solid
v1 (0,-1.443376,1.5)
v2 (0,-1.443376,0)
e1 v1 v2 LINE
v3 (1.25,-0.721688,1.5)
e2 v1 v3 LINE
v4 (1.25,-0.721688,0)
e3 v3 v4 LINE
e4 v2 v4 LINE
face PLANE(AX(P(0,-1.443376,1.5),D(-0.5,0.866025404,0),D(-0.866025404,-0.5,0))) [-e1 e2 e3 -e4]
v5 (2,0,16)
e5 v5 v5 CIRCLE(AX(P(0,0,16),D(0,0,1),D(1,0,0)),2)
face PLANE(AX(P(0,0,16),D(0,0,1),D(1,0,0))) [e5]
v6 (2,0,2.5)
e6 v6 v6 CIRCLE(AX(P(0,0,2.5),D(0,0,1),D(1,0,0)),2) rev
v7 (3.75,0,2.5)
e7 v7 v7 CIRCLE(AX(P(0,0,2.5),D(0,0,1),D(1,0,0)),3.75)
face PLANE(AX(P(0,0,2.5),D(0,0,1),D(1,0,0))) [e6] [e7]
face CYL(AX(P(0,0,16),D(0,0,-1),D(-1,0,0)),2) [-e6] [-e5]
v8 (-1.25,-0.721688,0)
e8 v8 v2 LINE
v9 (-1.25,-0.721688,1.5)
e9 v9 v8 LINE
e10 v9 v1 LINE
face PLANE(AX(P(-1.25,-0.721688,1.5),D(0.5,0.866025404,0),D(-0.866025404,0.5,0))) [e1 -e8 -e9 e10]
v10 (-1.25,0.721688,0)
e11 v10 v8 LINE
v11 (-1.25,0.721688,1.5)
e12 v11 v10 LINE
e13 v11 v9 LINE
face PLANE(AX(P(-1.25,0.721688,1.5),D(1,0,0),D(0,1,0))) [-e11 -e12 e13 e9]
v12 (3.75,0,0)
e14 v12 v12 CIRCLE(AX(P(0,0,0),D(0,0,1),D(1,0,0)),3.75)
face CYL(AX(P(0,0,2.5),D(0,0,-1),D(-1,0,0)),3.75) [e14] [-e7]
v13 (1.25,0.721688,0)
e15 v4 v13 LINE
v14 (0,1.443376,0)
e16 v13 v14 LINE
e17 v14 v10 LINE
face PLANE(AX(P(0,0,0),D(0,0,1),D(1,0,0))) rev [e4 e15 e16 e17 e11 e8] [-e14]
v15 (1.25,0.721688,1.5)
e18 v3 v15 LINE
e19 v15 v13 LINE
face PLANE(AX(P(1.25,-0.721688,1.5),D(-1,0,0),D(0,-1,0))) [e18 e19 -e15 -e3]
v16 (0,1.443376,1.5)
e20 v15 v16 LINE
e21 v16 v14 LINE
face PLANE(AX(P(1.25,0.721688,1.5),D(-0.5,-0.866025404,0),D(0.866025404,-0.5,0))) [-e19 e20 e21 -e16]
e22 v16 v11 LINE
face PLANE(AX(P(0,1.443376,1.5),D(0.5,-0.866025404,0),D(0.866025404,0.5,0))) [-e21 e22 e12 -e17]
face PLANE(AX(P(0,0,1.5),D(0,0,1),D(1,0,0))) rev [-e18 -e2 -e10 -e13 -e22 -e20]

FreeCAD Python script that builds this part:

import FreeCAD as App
import Part
import Sketcher
from FreeCAD import Vector
Q = App.Units.Quantity


def add_polygon(sketch, points):
    """Adds a closed chain of lines whose ends are joined by coincident constraints."""
    first, n = sketch.GeometryCount, len(points)
    for a, b in zip(points, points[1:] + points[:1]):
        sketch.addGeometry(Part.LineSegment(App.Vector(*a, 0), App.Vector(*b, 0)), False)
    for i in range(n):
        sketch.addConstraint(Sketcher.Constraint("Coincident", first + i, 2, first + (i + 1) % n, 1))

doc = App.newDocument("Part")
body = doc.addObject("PartDesign::Body", "Body")

# Sketch on XY plane
sketch1 = doc.addObject("Sketcher::SketchObject", "Sketch")
body.addObject(sketch1)
sketch1.AttachmentSupport = (doc.XY_Plane, [""])
sketch1.MapMode = "FlatFace"
sketch1.addGeometry(Part.Circle(Vector(0, 0, 0), Vector(0, 0, 1), 3.8), False)
sketch1.addConstraint(Sketcher.Constraint("Coincident", 0, 3, -1, 1))
sketch1.addConstraint(Sketcher.Constraint("Diameter", 0, Q("7.5 mm")))
pad1 = doc.addObject("PartDesign::Pad", "Pad")
body.addObject(pad1)
pad1.Profile = sketch1
pad1.Length = 2.5

# Sketch on XY plane
sketch2 = doc.addObject("Sketcher::SketchObject", "Sketch001")
body.addObject(sketch2)
sketch2.AttachmentSupport = (doc.XY_Plane, [""])
sketch2.MapMode = "FlatFace"
sketch2.addGeometry(Part.Circle(Vector(0, 0, 0), Vector(0, 0, 1), 2), False)
sketch2.addConstraint(Sketcher.Constraint("Coincident", 0, 3, -1, 1))
sketch2.addConstraint(Sketcher.Constraint("Diameter", 0, Q("4 mm")))
pad2 = doc.addObject("PartDesign::Pad", "Pad001")
body.addObject(pad2)
pad2.Profile = sketch2
pad2.Length = 16

# Sketch on XY plane
sketch3 = doc.addObject("Sketcher::SketchObject", "Sketch002")
body.addObject(sketch3)
sketch3.AttachmentSupport = (doc.XY_Plane, [""])
sketch3.MapMode = "FlatFace"
add_polygon(sketch3, [(0, -1.4), (1.2, -0.7), (1.2, 0.7), (0, 1.4), (-1.2, 0.7), (-1.2, -0.7)])  # lines 0-5
sketch3.addConstraint(Sketcher.Constraint("Vertical", 1))
sketch3.addConstraint(Sketcher.Constraint("Vertical", 4))
sketch3.addConstraint(Sketcher.Constraint("Symmetric", 0, 2, 3, 2, -1, 1))
sketch3.addConstraint(Sketcher.Constraint("Symmetric", 2, 2, 5, 2, -1, 1))
sketch3.addConstraint(Sketcher.Constraint("PointOnObject", 2, 2, -2))
sketch3.addConstraint(Sketcher.Constraint("Parallel", 2, 5))
sketch3.addConstraint(Sketcher.Constraint("Horizontal", 1, 2, 3, 2))
sketch3.addConstraint(Sketcher.Constraint("Angle", 0, Q("30 deg")))
sketch3.addConstraint(Sketcher.Constraint("DistanceX", 3, 2, 1, 2, Q("2.5 mm")))
sketch3.addConstraint(Sketcher.Constraint("DistanceY", 1, 1, 1, 2, Q("1.443376 mm")))
pocket1 = doc.addObject("PartDesign::Pocket", "Pocket")
body.addObject(pocket1)
pocket1.Profile = sketch3
pocket1.Length = 1.5
pocket1.Reversed = True

doc.recompute()
